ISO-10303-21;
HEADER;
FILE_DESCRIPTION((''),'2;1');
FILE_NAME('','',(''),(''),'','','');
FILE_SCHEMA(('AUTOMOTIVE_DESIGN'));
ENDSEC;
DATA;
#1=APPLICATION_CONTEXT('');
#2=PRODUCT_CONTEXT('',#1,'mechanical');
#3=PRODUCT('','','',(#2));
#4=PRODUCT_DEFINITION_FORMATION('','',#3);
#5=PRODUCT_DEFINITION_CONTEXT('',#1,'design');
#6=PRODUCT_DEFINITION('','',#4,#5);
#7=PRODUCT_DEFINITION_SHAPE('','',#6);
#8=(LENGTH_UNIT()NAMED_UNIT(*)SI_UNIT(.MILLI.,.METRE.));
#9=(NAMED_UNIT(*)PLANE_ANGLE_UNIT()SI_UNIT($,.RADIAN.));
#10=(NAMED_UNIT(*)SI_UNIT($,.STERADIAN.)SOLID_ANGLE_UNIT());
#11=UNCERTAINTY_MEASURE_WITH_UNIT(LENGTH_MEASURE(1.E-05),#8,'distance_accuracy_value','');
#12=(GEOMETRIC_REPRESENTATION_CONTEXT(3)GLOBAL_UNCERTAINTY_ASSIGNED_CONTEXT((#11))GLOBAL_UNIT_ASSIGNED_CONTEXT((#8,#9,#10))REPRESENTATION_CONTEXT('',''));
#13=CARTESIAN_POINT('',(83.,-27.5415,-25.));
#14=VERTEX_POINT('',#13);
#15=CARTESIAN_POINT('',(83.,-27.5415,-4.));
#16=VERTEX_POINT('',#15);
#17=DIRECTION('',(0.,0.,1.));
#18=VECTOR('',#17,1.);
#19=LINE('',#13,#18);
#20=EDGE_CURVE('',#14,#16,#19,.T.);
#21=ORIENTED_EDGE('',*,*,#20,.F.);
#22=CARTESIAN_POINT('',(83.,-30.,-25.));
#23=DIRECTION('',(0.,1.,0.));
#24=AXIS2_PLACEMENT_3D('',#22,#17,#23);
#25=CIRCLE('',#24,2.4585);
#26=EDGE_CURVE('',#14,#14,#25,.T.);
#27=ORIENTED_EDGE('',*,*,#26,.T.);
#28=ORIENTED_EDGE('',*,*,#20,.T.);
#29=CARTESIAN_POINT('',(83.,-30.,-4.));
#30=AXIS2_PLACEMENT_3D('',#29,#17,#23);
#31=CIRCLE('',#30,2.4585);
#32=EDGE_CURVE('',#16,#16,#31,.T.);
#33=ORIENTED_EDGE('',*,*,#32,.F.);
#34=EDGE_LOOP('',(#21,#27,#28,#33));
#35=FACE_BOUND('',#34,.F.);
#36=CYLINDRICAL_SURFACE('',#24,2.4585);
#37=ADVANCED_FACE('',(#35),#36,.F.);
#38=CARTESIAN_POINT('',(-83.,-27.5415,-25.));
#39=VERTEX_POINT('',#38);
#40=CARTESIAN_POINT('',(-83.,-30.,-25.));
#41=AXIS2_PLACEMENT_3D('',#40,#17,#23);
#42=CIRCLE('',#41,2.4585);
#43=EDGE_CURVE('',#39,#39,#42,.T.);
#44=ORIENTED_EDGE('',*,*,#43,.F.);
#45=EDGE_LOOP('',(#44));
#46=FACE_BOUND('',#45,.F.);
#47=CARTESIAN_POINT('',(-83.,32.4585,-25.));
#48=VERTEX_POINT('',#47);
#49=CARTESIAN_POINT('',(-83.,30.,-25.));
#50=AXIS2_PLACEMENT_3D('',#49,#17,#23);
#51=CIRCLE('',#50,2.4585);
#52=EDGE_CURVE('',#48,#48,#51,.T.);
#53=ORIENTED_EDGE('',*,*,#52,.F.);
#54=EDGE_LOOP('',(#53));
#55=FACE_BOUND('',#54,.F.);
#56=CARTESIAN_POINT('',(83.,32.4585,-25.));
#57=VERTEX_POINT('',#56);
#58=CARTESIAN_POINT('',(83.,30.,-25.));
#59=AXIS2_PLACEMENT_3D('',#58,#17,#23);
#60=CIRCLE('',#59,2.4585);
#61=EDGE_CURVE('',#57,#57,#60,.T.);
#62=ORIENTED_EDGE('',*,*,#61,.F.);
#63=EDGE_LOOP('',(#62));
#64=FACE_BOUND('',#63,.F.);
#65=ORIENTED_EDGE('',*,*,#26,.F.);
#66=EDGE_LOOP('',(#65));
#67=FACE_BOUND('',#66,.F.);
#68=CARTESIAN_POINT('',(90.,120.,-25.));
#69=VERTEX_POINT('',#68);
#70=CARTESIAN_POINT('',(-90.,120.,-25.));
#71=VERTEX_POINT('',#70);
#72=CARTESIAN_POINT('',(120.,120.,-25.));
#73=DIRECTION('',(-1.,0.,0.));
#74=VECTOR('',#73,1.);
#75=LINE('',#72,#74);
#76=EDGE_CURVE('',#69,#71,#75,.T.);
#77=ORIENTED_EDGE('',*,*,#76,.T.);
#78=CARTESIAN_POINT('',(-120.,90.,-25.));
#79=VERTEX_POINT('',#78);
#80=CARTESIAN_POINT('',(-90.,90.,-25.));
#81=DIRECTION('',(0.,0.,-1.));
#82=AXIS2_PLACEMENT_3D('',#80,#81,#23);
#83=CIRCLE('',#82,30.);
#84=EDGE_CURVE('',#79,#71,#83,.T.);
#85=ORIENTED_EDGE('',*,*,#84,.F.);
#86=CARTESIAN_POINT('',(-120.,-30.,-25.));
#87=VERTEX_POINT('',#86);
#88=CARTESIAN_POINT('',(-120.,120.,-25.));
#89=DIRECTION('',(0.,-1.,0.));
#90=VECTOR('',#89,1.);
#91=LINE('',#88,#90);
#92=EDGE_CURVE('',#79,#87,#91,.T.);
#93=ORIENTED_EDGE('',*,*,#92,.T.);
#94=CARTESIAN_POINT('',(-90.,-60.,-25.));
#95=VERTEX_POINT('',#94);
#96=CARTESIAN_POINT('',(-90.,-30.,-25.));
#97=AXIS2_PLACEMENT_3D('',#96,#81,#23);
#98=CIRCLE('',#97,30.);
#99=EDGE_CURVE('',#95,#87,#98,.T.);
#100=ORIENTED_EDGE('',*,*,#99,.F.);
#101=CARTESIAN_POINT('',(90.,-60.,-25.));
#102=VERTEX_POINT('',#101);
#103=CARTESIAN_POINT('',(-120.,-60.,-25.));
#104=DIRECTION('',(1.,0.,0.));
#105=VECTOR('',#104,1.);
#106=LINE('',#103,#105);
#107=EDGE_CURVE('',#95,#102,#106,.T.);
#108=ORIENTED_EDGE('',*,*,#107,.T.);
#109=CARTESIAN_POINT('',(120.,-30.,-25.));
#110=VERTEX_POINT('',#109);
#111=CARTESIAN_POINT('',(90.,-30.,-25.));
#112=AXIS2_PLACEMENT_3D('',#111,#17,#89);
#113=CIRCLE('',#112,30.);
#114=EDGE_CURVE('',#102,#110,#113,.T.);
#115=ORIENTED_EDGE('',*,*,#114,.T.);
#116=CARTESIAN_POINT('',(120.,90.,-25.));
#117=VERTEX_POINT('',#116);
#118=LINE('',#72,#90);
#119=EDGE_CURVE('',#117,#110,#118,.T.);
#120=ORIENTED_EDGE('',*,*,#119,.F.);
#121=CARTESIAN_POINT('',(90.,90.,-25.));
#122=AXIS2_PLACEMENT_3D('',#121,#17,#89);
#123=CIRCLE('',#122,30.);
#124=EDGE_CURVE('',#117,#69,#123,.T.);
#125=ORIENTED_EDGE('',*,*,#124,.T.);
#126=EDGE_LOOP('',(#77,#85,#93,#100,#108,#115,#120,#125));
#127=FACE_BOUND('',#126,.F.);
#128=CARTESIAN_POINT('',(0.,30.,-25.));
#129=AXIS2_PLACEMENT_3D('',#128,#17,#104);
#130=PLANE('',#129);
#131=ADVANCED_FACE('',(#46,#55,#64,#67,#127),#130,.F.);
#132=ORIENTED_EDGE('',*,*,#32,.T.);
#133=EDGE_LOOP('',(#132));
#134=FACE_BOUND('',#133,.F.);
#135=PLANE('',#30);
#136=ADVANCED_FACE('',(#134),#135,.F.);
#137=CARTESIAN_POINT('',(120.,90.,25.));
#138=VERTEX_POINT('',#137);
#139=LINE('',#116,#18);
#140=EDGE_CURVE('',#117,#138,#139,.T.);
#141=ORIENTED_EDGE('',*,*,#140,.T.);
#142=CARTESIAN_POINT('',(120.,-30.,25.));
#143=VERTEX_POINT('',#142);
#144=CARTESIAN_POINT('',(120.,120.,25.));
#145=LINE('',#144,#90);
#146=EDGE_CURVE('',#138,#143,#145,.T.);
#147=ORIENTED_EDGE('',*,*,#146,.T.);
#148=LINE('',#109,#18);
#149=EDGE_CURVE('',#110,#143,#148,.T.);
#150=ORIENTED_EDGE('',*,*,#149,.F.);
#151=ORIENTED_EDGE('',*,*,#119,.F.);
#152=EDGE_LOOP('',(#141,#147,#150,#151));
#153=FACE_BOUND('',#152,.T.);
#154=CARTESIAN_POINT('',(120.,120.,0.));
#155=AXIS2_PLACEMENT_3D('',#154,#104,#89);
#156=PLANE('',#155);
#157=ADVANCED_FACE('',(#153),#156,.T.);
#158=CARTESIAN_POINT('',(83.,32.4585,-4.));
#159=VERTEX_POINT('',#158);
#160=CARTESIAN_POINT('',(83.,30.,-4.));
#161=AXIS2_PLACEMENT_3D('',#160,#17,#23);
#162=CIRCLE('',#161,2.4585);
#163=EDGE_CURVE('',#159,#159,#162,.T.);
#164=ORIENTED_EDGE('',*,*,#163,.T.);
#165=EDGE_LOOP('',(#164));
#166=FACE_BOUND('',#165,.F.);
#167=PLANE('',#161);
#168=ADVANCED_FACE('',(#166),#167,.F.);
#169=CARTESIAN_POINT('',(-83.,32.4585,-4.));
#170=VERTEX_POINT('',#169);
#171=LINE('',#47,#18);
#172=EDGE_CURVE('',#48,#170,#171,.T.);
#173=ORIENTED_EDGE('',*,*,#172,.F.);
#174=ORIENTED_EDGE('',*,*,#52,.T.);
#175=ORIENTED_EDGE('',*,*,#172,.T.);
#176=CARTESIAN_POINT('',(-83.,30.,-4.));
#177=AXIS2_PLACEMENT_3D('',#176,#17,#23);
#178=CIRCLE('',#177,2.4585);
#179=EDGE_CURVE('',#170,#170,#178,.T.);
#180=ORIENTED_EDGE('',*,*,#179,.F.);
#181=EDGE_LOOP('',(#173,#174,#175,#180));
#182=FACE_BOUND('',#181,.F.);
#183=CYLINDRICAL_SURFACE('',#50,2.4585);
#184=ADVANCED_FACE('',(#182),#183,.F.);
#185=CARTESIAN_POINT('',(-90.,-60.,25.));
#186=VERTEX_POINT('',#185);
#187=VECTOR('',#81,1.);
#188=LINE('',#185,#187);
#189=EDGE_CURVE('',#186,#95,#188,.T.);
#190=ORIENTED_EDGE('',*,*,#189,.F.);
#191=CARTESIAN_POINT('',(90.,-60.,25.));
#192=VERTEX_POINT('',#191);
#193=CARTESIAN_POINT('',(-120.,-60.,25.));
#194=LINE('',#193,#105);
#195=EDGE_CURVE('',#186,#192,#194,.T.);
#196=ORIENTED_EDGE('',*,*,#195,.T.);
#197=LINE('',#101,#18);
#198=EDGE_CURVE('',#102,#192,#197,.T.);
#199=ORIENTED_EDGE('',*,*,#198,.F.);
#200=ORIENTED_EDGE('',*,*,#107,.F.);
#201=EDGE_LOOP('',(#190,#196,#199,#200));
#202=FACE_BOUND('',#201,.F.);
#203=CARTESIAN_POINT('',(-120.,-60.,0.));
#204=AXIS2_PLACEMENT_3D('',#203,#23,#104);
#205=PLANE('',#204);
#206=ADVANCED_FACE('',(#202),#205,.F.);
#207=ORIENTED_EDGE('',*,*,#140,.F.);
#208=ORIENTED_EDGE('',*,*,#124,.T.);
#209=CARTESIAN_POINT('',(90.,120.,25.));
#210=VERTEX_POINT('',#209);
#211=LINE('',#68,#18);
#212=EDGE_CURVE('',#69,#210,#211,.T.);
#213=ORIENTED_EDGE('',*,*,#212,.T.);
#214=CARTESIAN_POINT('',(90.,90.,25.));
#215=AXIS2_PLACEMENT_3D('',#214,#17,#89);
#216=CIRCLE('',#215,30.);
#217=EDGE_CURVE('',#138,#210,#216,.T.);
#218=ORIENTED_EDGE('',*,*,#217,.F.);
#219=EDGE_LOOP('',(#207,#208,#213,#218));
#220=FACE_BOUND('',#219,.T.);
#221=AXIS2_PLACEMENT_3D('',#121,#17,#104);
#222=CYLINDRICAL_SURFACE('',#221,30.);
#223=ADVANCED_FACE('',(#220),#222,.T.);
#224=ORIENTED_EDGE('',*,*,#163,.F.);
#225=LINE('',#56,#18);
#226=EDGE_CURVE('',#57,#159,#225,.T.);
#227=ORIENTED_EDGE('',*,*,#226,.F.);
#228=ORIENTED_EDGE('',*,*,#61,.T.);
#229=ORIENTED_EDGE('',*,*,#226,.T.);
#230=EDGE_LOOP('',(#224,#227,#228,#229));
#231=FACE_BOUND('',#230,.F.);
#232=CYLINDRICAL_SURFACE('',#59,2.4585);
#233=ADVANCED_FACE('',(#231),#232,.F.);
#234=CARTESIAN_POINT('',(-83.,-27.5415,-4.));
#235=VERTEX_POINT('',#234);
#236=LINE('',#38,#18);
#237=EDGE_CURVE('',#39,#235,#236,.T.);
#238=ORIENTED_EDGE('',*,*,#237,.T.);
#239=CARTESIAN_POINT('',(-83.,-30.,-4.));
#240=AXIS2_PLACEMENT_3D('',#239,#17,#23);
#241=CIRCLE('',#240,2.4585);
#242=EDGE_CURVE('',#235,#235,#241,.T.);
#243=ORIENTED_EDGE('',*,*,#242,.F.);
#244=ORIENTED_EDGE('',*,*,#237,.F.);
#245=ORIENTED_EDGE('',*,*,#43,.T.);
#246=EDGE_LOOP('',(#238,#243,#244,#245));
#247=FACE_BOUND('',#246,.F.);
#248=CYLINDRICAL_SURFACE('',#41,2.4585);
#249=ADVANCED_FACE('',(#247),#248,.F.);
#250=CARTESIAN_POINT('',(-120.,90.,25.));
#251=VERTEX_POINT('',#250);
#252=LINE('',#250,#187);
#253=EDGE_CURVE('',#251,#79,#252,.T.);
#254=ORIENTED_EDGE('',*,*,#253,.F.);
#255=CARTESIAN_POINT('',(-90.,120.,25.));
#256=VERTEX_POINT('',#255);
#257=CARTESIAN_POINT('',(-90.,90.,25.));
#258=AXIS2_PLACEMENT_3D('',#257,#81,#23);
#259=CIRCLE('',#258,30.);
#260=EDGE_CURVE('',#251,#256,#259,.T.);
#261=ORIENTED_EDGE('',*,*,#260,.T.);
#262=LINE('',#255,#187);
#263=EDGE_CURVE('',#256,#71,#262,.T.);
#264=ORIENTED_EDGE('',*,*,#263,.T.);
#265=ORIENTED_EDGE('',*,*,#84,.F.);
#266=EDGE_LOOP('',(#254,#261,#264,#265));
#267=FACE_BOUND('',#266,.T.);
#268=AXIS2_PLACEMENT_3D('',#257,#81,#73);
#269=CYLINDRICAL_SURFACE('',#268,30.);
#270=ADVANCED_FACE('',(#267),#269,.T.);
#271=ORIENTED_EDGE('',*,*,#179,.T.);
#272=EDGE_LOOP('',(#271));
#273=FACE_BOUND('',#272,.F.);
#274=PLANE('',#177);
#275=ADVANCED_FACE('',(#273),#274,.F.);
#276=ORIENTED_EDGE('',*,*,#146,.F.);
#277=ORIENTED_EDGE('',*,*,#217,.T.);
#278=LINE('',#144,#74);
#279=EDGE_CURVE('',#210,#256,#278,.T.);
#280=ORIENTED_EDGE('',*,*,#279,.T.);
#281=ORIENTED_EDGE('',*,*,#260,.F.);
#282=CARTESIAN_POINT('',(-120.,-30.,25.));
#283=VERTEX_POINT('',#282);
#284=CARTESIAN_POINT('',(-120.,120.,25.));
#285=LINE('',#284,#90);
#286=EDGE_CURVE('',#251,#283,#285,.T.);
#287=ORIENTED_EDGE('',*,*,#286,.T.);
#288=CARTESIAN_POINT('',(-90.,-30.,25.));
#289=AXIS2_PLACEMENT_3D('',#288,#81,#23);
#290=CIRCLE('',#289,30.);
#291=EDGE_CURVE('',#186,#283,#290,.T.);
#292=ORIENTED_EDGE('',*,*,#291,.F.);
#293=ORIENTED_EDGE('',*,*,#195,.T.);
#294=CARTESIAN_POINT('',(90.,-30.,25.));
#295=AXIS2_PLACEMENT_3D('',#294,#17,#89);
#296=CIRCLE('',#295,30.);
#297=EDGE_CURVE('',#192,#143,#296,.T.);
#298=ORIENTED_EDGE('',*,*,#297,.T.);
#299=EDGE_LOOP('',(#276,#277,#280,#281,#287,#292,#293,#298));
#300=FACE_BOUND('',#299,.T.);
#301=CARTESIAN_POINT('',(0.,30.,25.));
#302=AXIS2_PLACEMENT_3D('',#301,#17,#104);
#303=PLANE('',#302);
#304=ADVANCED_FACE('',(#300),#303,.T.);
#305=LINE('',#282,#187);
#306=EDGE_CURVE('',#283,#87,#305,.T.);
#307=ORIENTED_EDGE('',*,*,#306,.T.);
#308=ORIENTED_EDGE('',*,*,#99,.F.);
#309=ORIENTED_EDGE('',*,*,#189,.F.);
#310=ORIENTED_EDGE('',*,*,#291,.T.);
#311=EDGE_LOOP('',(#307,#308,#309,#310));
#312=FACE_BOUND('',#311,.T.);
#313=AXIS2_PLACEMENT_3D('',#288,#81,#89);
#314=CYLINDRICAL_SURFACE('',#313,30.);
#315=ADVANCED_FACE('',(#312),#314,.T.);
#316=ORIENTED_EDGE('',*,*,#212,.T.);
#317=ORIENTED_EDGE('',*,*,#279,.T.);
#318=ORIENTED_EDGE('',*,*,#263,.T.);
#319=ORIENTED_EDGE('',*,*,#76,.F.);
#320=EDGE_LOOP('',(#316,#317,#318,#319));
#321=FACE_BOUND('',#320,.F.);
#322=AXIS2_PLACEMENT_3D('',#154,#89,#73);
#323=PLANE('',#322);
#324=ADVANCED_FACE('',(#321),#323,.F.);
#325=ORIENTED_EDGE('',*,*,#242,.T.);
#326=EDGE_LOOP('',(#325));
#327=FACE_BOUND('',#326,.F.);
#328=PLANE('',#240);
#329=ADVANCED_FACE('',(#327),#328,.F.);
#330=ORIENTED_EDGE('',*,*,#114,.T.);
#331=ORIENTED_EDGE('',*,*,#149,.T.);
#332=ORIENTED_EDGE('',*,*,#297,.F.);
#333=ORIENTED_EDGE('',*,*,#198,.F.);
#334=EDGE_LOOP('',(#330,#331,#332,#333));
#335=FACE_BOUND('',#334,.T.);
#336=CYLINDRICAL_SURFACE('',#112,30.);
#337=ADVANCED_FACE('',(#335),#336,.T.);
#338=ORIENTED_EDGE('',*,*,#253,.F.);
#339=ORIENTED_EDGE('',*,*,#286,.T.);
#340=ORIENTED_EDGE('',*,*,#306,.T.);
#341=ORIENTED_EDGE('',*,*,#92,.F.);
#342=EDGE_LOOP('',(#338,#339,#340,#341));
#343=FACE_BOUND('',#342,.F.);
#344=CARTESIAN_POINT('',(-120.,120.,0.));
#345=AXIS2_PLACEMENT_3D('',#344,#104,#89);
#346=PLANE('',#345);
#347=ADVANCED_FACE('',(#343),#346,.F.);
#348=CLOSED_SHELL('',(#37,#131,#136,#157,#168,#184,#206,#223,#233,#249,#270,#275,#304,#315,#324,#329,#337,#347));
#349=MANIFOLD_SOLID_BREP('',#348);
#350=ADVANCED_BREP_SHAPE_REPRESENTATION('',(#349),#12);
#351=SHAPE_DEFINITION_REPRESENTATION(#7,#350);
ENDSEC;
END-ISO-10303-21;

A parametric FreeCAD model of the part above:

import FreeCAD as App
import Part
import Sketcher
from FreeCAD import Vector
Q = App.Units.Quantity


def edges_at(feature, points):
    """Names of the edges that pass closest to the given points."""
    edges = feature.Shape.Edges
    near = lambda p: min(range(len(edges)), key=lambda i: edges[i].distToShape(Part.Vertex(*p))[0])
    return sorted({f"Edge{near(p) + 1}" for p in points})


def add_polygon(sketch, points):
    """Adds a closed chain of lines whose ends are joined by coincident constraints."""
    first, n = sketch.GeometryCount, len(points)
    for a, b in zip(points, points[1:] + points[:1]):
        sketch.addGeometry(Part.LineSegment(App.Vector(*a, 0), App.Vector(*b, 0)), False)
    for i in range(n):
        sketch.addConstraint(Sketcher.Constraint("Coincident", first + i, 2, first + (i + 1) % n, 1))

doc = App.newDocument("Part")
body = doc.addObject("PartDesign::Body", "Body")

sketch1 = body.newObject("Sketcher::SketchObject", "Sketch")
sketch1.AttachmentSupport = (doc.getObject("XY_Plane"), [""])
sketch1.MapMode = "FlatFace"
add_polygon(sketch1, [(-120, 120), (-120, -60), (120, -60), (120, 120)])
sketch1.addConstraint([
    Sketcher.Constraint("Vertical", 0),
    Sketcher.Constraint("Horizontal", 1),
    Sketcher.Constraint("Vertical", 2),
    Sketcher.Constraint("Horizontal", 3),
    Sketcher.Constraint("DistanceX", 1, 1, 1, 2, Q("240 mm")),
    Sketcher.Constraint("DistanceY", 0, 2, 0, 1, Q("180 mm")),
    Sketcher.Constraint("DistanceX", 0, 2, -1, 1, Q("120 mm")),
    Sketcher.Constraint("DistanceY", 0, 2, -1, 1, Q("60 mm")),
])
pad1 = body.newObject("PartDesign::Pad", "Pad")
pad1.Profile = sketch1
pad1.Length = 50
pad1.Midplane = True
doc.recompute()

fillet = body.newObject("PartDesign::Fillet", "Fillet")
fillet.Base = (pad1, edges_at(pad1, [
    (-120, 120, 0),
    (-120, -60, 0),
    (120, -60, 0),
    (120, 120, 0),
]))
fillet.Radius = 30

sketch2 = body.newObject("Sketcher::SketchObject", "Sketch001")
sketch2.AttachmentSupport = (doc.getObject("XY_Plane"), [""])
sketch2.MapMode = "FlatFace"
sketch2.AttachmentOffset = App.Placement(Vector(0, 0, -25), App.Rotation())
sketch2.addGeometry(Part.Circle(Vector(83, -30, 0), Vector(0, 0, 1), 2.4585), False)
sketch2.addConstraint([
    Sketcher.Constraint("Diameter", 0, Q("4.917 mm")),
    Sketcher.Constraint("DistanceX", -1, 1, 0, 3, Q("83 mm")),
    Sketcher.Constraint("DistanceY", 0, 3, -1, 1, Q("30 mm")),
])
doc.recompute()
hole = body.newObject("PartDesign::Hole", "Hole")
hole.Profile = sketch2
hole.ThreadType = "None"
hole.Diameter = 4.917
hole.DepthType = "Dimension"
hole.Depth = 21
hole.DrillPoint = "Flat"
hole.Reversed = True

sketch3 = body.newObject("Sketcher::SketchObject", "Sketch002")
sketch3.AttachmentSupport = (doc.getObject("XY_Plane"), [""])
sketch3.MapMode = "FlatFace"
sketch3.AttachmentOffset = App.Placement(Vector(0, 0, -25), App.Rotation())
sketch3.addGeometry(Part.Circle(Vector(83, 30, 0), Vector(0, 0, 1), 2.4585), False)
sketch3.addConstraint([
    Sketcher.Constraint("Diameter", 0, Q("4.917 mm")),
    Sketcher.Constraint("DistanceX", -1, 1, 0, 3, Q("83 mm")),
    Sketcher.Constraint("DistanceY", -1, 1, 0, 3, Q("30 mm")),
])
doc.recompute()
hole2 = body.newObject("PartDesign::Hole", "Hole001")
hole2.Profile = sketch3
hole2.ThreadType = "None"
hole2.Diameter = 4.917
hole2.DepthType = "Dimension"
hole2.Depth = 21
hole2.DrillPoint = "Flat"
hole2.Reversed = True

sketch4 = body.newObject("Sketcher::SketchObject", "Sketch003")
sketch4.AttachmentSupport = (doc.getObject("XY_Plane"), [""])
sketch4.MapMode = "FlatFace"
sketch4.AttachmentOffset = App.Placement(Vector(0, 0, -25), App.Rotation())
sketch4.addGeometry(Part.Circle(Vector(-83, 30, 0), Vector(0, 0, 1), 2.4585), False)
sketch4.addConstraint([
    Sketcher.Constraint("Diameter", 0, Q("4.917 mm")),
    Sketcher.Constraint("DistanceX", 0, 3, -1, 1, Q("83 mm")),
    Sketcher.Constraint("DistanceY", -1, 1, 0, 3, Q("30 mm")),
])
doc.recompute()
hole3 = body.newObject("PartDesign::Hole", "Hole002")
hole3.Profile = sketch4
hole3.ThreadType = "None"
hole3.Diameter = 4.917
hole3.DepthType = "Dimension"
hole3.Depth = 21
hole3.DrillPoint = "Flat"
hole3.Reversed = True

sketch5 = body.newObject("Sketcher::SketchObject", "Sketch004")
sketch5.AttachmentSupport = (doc.getObject("XY_Plane"), [""])
sketch5.MapMode = "FlatFace"
sketch5.AttachmentOffset = App.Placement(Vector(0, 0, -25), App.Rotation())
sketch5.addGeometry(Part.Circle(Vector(-83, -30, 0), Vector(0, 0, 1), 2.4585), False)
sketch5.addConstraint([
    Sketcher.Constraint("Diameter", 0, Q("4.917 mm")),
    Sketcher.Constraint("DistanceX", 0, 3, -1, 1, Q("83 mm")),
    Sketcher.Constraint("DistanceY", 0, 3, -1, 1, Q("30 mm")),
])
doc.recompute()
hole4 = body.newObject("PartDesign::Hole", "Hole003")
hole4.Profile = sketch5
hole4.ThreadType = "None"
hole4.Diameter = 4.917
hole4.DepthType = "Dimension"
hole4.Depth = 21
hole4.DrillPoint = "Flat"
hole4.Reversed = True

doc.recompute()
